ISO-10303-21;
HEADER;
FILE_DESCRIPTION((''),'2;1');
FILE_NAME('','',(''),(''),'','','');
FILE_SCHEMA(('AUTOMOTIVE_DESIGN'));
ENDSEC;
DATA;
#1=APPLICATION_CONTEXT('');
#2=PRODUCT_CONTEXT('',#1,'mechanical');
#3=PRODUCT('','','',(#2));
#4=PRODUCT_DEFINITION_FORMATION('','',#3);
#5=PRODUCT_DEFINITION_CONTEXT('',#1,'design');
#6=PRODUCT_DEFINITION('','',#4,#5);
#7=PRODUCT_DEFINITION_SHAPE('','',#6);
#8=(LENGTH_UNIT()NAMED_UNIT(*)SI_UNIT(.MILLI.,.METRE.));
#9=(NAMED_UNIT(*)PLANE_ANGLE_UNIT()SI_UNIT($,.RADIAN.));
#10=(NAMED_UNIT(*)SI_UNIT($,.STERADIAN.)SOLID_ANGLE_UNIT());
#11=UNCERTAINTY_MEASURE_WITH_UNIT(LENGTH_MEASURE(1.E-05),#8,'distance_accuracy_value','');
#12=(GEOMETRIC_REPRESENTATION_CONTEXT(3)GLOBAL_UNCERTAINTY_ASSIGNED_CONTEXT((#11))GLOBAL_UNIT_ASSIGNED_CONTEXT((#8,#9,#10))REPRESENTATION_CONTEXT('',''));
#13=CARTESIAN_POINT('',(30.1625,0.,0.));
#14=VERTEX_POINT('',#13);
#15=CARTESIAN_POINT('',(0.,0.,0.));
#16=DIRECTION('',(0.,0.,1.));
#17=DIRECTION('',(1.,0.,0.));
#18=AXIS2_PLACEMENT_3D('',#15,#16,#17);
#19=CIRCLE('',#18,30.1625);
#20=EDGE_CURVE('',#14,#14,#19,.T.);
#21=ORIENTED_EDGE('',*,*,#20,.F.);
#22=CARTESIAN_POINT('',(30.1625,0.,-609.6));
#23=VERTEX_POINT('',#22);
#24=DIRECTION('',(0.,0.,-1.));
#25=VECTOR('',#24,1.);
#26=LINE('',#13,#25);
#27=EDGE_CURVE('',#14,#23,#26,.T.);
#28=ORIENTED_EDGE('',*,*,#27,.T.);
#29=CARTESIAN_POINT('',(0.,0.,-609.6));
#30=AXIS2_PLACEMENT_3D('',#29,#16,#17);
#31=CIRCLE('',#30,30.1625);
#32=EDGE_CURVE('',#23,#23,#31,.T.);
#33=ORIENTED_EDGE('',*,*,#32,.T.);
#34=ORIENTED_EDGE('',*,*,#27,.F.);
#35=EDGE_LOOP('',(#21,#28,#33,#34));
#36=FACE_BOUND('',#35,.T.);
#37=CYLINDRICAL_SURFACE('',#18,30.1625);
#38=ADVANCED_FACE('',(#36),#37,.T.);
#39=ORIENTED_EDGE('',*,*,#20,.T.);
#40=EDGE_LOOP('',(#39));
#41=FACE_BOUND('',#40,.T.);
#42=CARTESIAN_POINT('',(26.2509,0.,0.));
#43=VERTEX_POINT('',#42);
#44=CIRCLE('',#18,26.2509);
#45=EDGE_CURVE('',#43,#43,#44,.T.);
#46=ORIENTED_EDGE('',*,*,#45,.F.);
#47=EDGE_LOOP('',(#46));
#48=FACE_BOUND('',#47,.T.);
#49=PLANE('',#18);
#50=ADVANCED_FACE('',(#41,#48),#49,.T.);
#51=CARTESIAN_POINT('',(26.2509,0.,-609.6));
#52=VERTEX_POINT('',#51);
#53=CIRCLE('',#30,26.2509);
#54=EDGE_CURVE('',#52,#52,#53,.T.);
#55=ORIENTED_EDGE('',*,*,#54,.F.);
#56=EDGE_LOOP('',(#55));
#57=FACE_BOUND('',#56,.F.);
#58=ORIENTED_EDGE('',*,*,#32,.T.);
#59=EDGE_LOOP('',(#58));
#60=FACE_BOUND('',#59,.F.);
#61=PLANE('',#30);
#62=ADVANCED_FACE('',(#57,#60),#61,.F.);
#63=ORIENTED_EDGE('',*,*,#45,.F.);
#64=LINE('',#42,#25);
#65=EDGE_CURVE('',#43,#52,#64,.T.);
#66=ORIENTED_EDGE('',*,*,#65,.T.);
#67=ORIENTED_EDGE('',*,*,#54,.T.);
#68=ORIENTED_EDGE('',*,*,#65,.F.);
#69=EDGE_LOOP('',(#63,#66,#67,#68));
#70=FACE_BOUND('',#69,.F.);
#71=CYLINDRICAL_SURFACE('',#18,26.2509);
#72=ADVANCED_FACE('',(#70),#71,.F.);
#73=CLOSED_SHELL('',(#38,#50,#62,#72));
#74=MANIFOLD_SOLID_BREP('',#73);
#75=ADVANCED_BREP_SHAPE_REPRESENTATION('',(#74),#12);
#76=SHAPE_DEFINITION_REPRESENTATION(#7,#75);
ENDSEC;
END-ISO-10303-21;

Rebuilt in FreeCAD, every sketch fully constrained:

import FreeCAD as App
import Part
import Sketcher
Q = App.Units.Quantity

doc = App.newDocument("Part")
params = doc.addObject("Spreadsheet::Sheet", "Params")
for row, (alias, value) in enumerate([
    ("sketch1_diameter", "2.375 in"),
    ("sketch1_diameter2", "2.067 in"),
    ("pad1_length", "24 in"),
], start=1):
    params.set(f"A{row}", alias)
    params.set(f"B{row}", "=" + value)
    params.setAlias(f"B{row}", alias)

body = doc.addObject("PartDesign::Body", "Body")

# Sketch on XY plane
sketch1 = doc.addObject("Sketcher::SketchObject", "Sketch")
body.addObject(sketch1)
sketch1.AttachmentSupport = (doc.XY_Plane, [""])
sketch1.MapMode = "FlatFace"
sketch1.addGeometry([
    Part.Circle(App.Vector(0, 0, 0), App.Vector(0, 0, 1), 30),
    Part.Circle(App.Vector(0, 0, 0), App.Vector(0, 0, 1), 26),
], False)
sketch1.addConstraint([
    Sketcher.Constraint("Coincident", 0, 3, -1, 1),
    Sketcher.Constraint("Coincident", 1, 3, -1, 1),
    Sketcher.Constraint("Diameter", 0, Q("2.375 in")),
    Sketcher.Constraint("Diameter", 1, Q("2.067 in")),
])
sketch1.setExpression("Constraints[2]", "Params.sketch1_diameter")
sketch1.setExpression("Constraints[3]", "Params.sketch1_diameter2")
pad1 = doc.addObject("PartDesign::Pad", "Pad")
body.addObject(pad1)
pad1.Profile = sketch1
pad1.setExpression("Length", "Params.pad1_length")
pad1.Reversed = True

doc.recompute()
